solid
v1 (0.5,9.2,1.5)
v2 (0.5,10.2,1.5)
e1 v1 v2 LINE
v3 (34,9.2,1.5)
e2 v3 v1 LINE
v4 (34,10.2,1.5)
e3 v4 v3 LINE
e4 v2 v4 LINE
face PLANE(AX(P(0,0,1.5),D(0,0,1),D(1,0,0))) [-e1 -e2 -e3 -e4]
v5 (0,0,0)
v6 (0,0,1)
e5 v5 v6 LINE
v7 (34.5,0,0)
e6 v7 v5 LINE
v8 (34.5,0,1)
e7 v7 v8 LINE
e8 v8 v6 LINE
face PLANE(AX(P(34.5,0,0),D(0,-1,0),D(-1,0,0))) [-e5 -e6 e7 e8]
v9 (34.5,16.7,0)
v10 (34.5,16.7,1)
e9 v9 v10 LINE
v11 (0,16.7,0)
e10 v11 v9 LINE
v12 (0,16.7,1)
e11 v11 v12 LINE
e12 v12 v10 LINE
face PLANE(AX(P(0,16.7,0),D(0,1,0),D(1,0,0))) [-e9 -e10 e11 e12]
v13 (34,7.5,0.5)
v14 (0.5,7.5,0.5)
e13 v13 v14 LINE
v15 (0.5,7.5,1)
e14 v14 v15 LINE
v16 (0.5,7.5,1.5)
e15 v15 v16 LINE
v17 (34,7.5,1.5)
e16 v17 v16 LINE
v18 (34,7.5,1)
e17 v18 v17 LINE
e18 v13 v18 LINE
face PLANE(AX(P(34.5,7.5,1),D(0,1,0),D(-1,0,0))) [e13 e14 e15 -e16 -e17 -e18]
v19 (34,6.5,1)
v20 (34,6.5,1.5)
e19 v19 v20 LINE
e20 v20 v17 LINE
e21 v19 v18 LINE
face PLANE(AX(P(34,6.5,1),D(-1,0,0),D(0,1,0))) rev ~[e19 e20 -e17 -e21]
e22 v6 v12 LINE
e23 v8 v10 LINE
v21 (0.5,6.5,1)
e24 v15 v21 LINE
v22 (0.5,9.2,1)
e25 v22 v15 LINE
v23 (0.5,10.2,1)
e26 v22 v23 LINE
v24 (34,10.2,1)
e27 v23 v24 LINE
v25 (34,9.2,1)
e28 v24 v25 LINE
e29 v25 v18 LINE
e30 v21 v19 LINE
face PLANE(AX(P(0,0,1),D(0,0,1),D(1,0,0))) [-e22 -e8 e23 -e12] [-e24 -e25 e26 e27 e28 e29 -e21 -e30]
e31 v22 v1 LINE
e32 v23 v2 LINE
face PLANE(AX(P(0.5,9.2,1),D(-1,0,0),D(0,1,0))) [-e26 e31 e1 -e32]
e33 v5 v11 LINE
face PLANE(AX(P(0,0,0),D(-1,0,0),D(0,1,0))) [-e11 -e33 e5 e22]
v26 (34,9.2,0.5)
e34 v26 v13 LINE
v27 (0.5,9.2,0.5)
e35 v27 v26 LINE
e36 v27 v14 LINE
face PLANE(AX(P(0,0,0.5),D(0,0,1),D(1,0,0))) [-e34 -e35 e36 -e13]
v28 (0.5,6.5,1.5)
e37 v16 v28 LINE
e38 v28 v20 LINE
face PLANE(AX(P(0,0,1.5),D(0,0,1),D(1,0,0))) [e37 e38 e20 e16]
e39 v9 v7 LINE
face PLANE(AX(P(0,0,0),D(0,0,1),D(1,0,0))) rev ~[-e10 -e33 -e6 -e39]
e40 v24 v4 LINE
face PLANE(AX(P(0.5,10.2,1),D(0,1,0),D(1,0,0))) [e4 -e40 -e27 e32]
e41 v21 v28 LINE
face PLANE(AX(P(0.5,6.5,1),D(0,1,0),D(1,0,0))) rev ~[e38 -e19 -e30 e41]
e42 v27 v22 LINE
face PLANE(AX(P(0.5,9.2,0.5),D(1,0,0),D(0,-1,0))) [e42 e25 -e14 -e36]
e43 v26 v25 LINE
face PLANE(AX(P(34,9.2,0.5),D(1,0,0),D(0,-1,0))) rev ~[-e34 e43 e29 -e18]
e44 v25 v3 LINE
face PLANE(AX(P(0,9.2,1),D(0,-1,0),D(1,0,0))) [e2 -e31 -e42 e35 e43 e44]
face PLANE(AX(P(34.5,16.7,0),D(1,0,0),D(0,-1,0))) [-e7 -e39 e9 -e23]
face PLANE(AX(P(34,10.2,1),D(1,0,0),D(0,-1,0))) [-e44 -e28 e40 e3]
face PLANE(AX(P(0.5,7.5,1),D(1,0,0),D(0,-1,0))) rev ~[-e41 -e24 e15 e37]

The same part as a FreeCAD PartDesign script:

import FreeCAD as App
import Part
import Sketcher

V = App.Vector

doc = App.newDocument("Part")
params = doc.addObject("Spreadsheet::Sheet", "Params")
for row, (alias, value) in enumerate([
    ("sketch1_width", "34.5 mm"),
    ("sketch1_height", "16.7 mm"),
    ("pad1_length", "1 mm"),
    ("sketch2_width", "34.5 mm"),
    ("sketch2_height", "1.7 mm"),
    ("pocket1_length", "0.5 mm"),
    ("sketch3_width", "0.5 mm"),
    ("sketch3_height", "1.7 mm"),
    ("pad2_length", "0.5 mm"),
    ("sketch4_height", "1 mm"),
    ("sketch4_width", "33.5 mm"),
    ("pad3_length", "0.5 mm"),
], start=1):
    params.set(f"A{row}", alias)
    params.set(f"B{row}", "=" + value)
    params.setAlias(f"B{row}", alias)

body = doc.addObject("PartDesign::Body", "Body")

# Sketch on XY plane
sketch1 = body.newObject("Sketcher::SketchObject", "Sketch")
sketch1.AttachmentSupport = (doc.getObject("XY_Plane"), [""])
sketch1.MapMode = "FlatFace"
sketch1.addGeometry([
    Part.LineSegment(V(0, 17, 0), V(0, 0, 0)),
    Part.LineSegment(V(0, 0, 0), V(34, 0, 0)),
    Part.LineSegment(V(34, 0, 0), V(34, 17, 0)),
    Part.LineSegment(V(34, 17, 0), V(0, 17, 0)),
], False)
sketch1.addConstraint([
    Sketcher.Constraint("Coincident", 0, 2, 1, 1),
    Sketcher.Constraint("Coincident", 1, 2, 2, 1),
    Sketcher.Constraint("Coincident", 2, 2, 3, 1),
    Sketcher.Constraint("Coincident", 3, 2, 0, 1),
    Sketcher.Constraint("Vertical", 0),
    Sketcher.Constraint("Horizontal", 1),
    Sketcher.Constraint("Vertical", 2),
    Sketcher.Constraint("Horizontal", 3),
    Sketcher.Constraint("Coincident", 0, 2, -1, 1),
    Sketcher.Constraint("DistanceX", 1, 1, 1, 2, 34.5),
    Sketcher.Constraint("DistanceY", 0, 2, 0, 1, 16.7),
])
sketch1.setExpression("Constraints[9]", "Params.sketch1_width")
sketch1.setExpression("Constraints[10]", "Params.sketch1_height")
pad1 = body.newObject("PartDesign::Pad", "Pad")
pad1.Profile = sketch1
pad1.setExpression("Length", "Params.pad1_length")

# Sketch on XY plane
sketch2 = body.newObject("Sketcher::SketchObject", "Sketch001")
sketch2.AttachmentSupport = (doc.getObject("XY_Plane"), [""])
sketch2.MapMode = "FlatFace"
sketch2.AttachmentOffset = App.Placement(V(0, 0, 1), App.Rotation())
sketch2.addGeometry([
    Part.LineSegment(V(34.5, 9.2, 0), V(0, 9.2, 0)),
    Part.LineSegment(V(0, 9.2, 0), V(0, 7.5, 0)),
    Part.LineSegment(V(0, 7.5, 0), V(34.5, 7.5, 0)),
    Part.LineSegment(V(34.5, 7.5, 0), V(34.5, 9.2, 0)),
], False)
sketch2.addConstraint([
    Sketcher.Constraint("Coincident", 0, 2, 1, 1),
    Sketcher.Constraint("Coincident", 1, 2, 2, 1),
    Sketcher.Constraint("Coincident", 2, 2, 3, 1),
    Sketcher.Constraint("Coincident", 3, 2, 0, 1),
    Sketcher.Constraint("Horizontal", 0),
    Sketcher.Constraint("Vertical", 1),
    Sketcher.Constraint("Horizontal", 2),
    Sketcher.Constraint("Vertical", 3),
    Sketcher.Constraint("PointOnObject", 0, 2, -2),
    Sketcher.Constraint("DistanceX", 0, 2, 0, 1, 34.5),
    Sketcher.Constraint("DistanceY", 1, 2, 1, 1, 1.7),
    Sketcher.Constraint("DistanceY", -1, 1, 1, 2, 7.5),
])
sketch2.setExpression("Constraints[9]", "Params.sketch2_width")
sketch2.setExpression("Constraints[10]", "Params.sketch2_height")
pocket1 = body.newObject("PartDesign::Pocket", "Pocket")
pocket1.Profile = sketch2
pocket1.setExpression("Length", "Params.pocket1_length")

# Sketch on XY plane
sketch3 = body.newObject("Sketcher::SketchObject", "Sketch002")
sketch3.AttachmentSupport = (doc.getObject("XY_Plane"), [""])
sketch3.MapMode = "FlatFace"
sketch3.AttachmentOffset = App.Placement(V(0, 0, 0.5), App.Rotation())
sketch3.addGeometry([
    Part.LineSegment(V(0, 7.5, 0), V(0.5, 7.5, 0)),  # 0
    Part.LineSegment(V(0.5, 7.5, 0), V(0.5, 9.2, 0)),  # 1
    Part.LineSegment(V(0.5, 9.2, 0), V(0, 9.2, 0)),  # 2
    Part.LineSegment(V(0, 9.2, 0), V(0, 7.5, 0)),  # 3
    Part.LineSegment(V(34, 7.5, 0), V(34.5, 7.5, 0)),  # 4
    Part.LineSegment(V(34.5, 7.5, 0), V(34.5, 9.2, 0)),  # 5
    Part.LineSegment(V(34.5, 9.2, 0), V(34, 9.2, 0)),  # 6
    Part.LineSegment(V(34, 9.2, 0), V(34, 7.5, 0)),  # 7
], False)
sketch3.addConstraint([
    Sketcher.Constraint("Coincident", 0, 2, 1, 1),
    Sketcher.Constraint("Coincident", 1, 2, 2, 1),
    Sketcher.Constraint("Coincident", 2, 2, 3, 1),
    Sketcher.Constraint("Coincident", 3, 2, 0, 1),
    Sketcher.Constraint("Coincident", 4, 2, 5, 1),
    Sketcher.Constraint("Coincident", 5, 2, 6, 1),
    Sketcher.Constraint("Coincident", 6, 2, 7, 1),
    Sketcher.Constraint("Coincident", 7, 2, 4, 1),
    Sketcher.Constraint("Horizontal", 0),
    Sketcher.Constraint("Vertical", 1),
    Sketcher.Constraint("Horizontal", 2),
    Sketcher.Constraint("Vertical", 3),
    Sketcher.Constraint("Horizontal", 4),
    Sketcher.Constraint("Vertical", 5),
    Sketcher.Constraint("Horizontal", 6),
    Sketcher.Constraint("Vertical", 7),
    Sketcher.Constraint("PointOnObject", 2, 2, -2),
    Sketcher.Constraint("Horizontal", 3, 2, 4, 2),
    Sketcher.Constraint("Horizontal", 2, 2, 5, 2),
    Sketcher.Constraint("Equal", 2, 4),
    Sketcher.Constraint("DistanceX", 0, 1, 0, 2, 0.5),
    Sketcher.Constraint("DistanceY", 1, 1, 1, 2, 1.7),
    Sketcher.Constraint("DistanceX", -1, 1, 6, 2, 34.0),
    Sketcher.Constraint("DistanceY", -1, 1, 0, 2, 7.5),
])
sketch3.setExpression("Constraints[20]", "Params.sketch3_width")
sketch3.setExpression("Constraints[21]", "Params.sketch3_height")
pad2 = body.newObject("PartDesign::Pad", "Pad001")
pad2.Profile = sketch3
pad2.setExpression("Length", "Params.pad2_length")

# Sketch on XY plane
sketch4 = body.newObject("Sketcher::SketchObject", "Sketch003")
sketch4.AttachmentSupport = (doc.getObject("XY_Plane"), [""])
sketch4.MapMode = "FlatFace"
sketch4.AttachmentOffset = App.Placement(V(0, 0, 1), App.Rotation())
sketch4.addGeometry([
    Part.LineSegment(V(34, 10.2, 0), V(0.5, 10.2, 0)),  # 0
    Part.LineSegment(V(0.5, 10.2, 0), V(0.5, 9.2, 0)),  # 1
    Part.LineSegment(V(0.5, 9.2, 0), V(34, 9.2, 0)),  # 2
    Part.LineSegment(V(34, 9.2, 0), V(34, 10.2, 0)),  # 3
    Part.LineSegment(V(34, 6.5, 0), V(34, 7.5, 0)),  # 4
    Part.LineSegment(V(34, 7.5, 0), V(0.5, 7.5, 0)),  # 5
    Part.LineSegment(V(0.5, 7.5, 0), V(0.5, 6.5, 0)),  # 6
    Part.LineSegment(V(0.5, 6.5, 0), V(34, 6.5, 0)),  # 7
], False)
sketch4.addConstraint([
    Sketcher.Constraint("Coincident", 0, 2, 1, 1),
    Sketcher.Constraint("Coincident", 1, 2, 2, 1),
    Sketcher.Constraint("Coincident", 2, 2, 3, 1),
    Sketcher.Constraint("Coincident", 3, 2, 0, 1),
    Sketcher.Constraint("Coincident", 4, 2, 5, 1),
    Sketcher.Constraint("Coincident", 5, 2, 6, 1),
    Sketcher.Constraint("Coincident", 6, 2, 7, 1),
    Sketcher.Constraint("Coincident", 7, 2, 4, 1),
    Sketcher.Constraint("Horizontal", 0),
    Sketcher.Constraint("Vertical", 1),
    Sketcher.Constraint("Horizontal", 2),
    Sketcher.Constraint("Vertical", 3),
    Sketcher.Constraint("Vertical", 4),
    Sketcher.Constraint("Horizontal", 5),
    Sketcher.Constraint("Vertical", 6),
    Sketcher.Constraint("Horizontal", 7),
    Sketcher.Constraint("Vertical", 3, 2, 4, 2),
    Sketcher.Constraint("Vertical", 1, 2, 5, 2),
    Sketcher.Constraint("Equal", 3, 4),
    Sketcher.Constraint("DistanceY", 1, 2, 1, 1, 1.0),
    Sketcher.Constraint("DistanceX", 0, 2, 0, 1, 33.5),
    Sketcher.Constraint("DistanceX", -1, 1, 2, 2, 34.0),
    Sketcher.Constraint("DistanceY", -1, 1, 0, 2, 10.2),
    Sketcher.Constraint("DistanceY", -1, 1, 4, 2, 7.5),
])
sketch4.setExpression("Constraints[19]", "Params.sketch4_height")
sketch4.setExpression("Constraints[20]", "Params.sketch4_width")
pad3 = body.newObject("PartDesign::Pad", "Pad002")
pad3.Profile = sketch4
pad3.setExpression("Length", "Params.pad3_length")

doc.recompute()
